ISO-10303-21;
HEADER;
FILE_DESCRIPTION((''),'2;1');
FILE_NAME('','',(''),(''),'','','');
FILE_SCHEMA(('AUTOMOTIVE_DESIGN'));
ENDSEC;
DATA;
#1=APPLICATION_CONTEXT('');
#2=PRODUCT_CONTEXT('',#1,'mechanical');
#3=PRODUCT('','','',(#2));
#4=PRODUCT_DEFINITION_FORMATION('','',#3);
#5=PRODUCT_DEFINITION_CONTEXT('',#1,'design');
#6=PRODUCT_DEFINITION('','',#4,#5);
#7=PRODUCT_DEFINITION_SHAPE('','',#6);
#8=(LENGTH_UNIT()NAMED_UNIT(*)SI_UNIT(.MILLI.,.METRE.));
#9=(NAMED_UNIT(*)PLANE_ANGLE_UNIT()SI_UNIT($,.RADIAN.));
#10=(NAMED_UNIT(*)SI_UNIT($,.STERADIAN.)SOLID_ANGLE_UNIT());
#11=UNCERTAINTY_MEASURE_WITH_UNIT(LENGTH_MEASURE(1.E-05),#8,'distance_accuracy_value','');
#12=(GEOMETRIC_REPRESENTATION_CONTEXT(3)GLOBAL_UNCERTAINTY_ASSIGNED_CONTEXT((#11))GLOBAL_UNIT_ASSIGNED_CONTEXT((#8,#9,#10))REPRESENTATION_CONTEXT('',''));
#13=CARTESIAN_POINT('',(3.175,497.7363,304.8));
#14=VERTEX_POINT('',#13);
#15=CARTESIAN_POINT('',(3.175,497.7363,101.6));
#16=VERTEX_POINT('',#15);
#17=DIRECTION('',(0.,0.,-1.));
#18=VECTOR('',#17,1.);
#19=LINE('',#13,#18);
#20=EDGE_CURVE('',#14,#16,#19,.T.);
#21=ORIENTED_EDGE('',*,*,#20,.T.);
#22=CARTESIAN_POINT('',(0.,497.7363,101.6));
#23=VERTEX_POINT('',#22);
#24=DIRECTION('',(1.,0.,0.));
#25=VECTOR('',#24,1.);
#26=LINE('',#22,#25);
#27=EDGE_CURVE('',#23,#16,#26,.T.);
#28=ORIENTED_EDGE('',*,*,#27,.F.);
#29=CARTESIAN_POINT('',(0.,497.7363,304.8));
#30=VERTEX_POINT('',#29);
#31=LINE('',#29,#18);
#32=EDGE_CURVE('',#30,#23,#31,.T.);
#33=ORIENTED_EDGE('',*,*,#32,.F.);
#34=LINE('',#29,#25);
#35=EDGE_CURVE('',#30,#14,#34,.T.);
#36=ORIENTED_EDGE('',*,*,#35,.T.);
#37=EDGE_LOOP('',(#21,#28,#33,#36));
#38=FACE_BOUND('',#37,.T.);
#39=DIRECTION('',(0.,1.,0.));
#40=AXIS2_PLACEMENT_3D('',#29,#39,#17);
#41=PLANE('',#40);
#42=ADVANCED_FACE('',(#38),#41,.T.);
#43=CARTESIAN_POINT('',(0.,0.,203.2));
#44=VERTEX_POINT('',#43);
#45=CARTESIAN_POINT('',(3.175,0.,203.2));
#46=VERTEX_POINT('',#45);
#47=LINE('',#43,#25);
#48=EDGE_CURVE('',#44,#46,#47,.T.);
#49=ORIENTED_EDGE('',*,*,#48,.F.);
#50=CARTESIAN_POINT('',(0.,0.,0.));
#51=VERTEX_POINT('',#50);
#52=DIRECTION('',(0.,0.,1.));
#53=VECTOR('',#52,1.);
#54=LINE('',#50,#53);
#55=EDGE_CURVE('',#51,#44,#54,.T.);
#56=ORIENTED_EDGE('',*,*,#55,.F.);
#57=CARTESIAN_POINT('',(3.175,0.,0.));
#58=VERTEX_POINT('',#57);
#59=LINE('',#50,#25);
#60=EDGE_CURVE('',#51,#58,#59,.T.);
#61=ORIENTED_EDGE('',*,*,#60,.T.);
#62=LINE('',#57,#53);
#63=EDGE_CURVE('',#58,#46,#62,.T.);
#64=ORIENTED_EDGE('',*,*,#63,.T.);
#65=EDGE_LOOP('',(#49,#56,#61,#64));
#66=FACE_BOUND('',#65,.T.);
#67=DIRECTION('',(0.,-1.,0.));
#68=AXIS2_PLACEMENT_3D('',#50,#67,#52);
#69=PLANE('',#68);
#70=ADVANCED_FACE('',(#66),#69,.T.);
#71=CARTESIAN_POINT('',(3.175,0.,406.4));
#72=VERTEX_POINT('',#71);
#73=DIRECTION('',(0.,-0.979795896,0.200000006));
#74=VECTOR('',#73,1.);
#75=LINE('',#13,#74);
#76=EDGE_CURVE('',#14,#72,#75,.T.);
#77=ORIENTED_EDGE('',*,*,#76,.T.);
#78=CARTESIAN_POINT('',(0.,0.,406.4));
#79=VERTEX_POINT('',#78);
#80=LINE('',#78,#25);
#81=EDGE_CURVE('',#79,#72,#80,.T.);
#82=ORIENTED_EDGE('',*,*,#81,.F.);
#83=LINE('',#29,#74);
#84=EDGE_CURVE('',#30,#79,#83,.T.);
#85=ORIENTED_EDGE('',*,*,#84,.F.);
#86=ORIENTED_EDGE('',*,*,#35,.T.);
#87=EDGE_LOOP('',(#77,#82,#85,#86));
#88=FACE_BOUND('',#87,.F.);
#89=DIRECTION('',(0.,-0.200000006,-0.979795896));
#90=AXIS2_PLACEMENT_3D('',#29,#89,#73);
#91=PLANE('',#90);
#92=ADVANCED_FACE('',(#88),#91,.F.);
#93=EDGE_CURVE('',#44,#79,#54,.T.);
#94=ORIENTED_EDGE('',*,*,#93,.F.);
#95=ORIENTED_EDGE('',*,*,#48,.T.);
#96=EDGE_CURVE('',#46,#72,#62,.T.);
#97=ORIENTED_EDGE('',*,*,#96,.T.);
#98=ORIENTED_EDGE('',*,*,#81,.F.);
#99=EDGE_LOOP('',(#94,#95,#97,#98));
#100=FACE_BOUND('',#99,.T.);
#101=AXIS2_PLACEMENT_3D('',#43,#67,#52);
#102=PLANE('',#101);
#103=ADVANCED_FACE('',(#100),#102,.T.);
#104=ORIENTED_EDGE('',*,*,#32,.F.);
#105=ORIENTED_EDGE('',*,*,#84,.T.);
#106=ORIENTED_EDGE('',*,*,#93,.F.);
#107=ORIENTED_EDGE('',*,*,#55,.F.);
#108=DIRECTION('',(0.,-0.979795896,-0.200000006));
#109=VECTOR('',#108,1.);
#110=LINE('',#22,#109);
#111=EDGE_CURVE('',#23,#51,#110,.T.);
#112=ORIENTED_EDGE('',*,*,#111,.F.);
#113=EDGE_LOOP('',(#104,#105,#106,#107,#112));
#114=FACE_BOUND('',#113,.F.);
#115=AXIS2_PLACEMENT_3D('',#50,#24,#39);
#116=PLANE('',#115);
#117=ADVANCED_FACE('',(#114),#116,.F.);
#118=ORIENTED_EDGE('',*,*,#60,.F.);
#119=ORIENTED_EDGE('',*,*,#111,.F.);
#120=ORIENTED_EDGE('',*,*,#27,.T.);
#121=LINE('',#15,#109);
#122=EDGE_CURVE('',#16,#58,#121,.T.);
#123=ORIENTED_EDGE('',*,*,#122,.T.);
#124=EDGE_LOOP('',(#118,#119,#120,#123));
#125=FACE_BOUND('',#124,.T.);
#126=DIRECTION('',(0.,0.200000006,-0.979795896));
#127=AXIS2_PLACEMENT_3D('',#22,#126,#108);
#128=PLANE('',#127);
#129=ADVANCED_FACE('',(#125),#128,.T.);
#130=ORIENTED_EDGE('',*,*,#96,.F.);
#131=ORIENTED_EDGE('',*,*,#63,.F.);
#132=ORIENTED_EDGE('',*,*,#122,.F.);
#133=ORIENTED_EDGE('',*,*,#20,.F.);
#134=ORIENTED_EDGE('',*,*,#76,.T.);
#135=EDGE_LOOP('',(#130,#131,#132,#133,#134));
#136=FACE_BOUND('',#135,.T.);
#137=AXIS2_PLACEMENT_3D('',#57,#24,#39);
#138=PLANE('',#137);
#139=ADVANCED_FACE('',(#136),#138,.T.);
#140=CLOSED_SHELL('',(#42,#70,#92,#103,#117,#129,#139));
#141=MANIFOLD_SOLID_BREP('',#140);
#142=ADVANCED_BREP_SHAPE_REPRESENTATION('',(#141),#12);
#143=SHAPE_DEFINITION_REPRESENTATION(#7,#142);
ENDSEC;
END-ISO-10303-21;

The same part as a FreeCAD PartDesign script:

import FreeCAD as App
import Part
import Sketcher

V = App.Vector
Q = App.Units.Quantity


def add_polygon(sketch, points):
    """Adds a closed chain of lines whose ends are joined by coincident constraints."""
    first, n = sketch.GeometryCount, len(points)
    for a, b in zip(points, points[1:] + points[:1]):
        sketch.addGeometry(Part.LineSegment(App.Vector(*a, 0), App.Vector(*b, 0)), False)
    for i in range(n):
        sketch.addConstraint(Sketcher.Constraint("Coincident", first + i, 2, first + (i + 1) % n, 1))

doc = App.newDocument("Part")
body = doc.addObject("PartDesign::Body", "Body")

sketch1 = body.newObject("Sketcher::SketchObject", "Sketch")
sketch1.AttachmentSupport = (doc.getObject("YZ_Plane"), [""])
sketch1.MapMode = "FlatFace"
add_polygon(sketch1, [(0, 406), (0, 0), (498, 102), (498, 305)])
sketch1.addConstraint(Sketcher.Constraint("Vertical", 0))
sketch1.addConstraint(Sketcher.Constraint("Vertical", 2))
sketch1.addConstraint(Sketcher.Constraint("Coincident", 0, 2, -1, 1))
sketch1.addConstraint(Sketcher.Constraint("Equal", 1, 3))
sketch1.addConstraint(Sketcher.Constraint("DistanceY", 0, 2, 0, 1, Q("16 in")))
sketch1.addConstraint(Sketcher.Constraint("DistanceY", 2, 1, 2, 2, Q("8 in")))
sketch1.addConstraint(Sketcher.Constraint("Distance", 1, Q("20 in")))
pad1 = body.newObject("PartDesign::Pad", "Pad")
pad1.Profile = sketch1
pad1.Length = Q("0.125 in")

doc.recompute()
